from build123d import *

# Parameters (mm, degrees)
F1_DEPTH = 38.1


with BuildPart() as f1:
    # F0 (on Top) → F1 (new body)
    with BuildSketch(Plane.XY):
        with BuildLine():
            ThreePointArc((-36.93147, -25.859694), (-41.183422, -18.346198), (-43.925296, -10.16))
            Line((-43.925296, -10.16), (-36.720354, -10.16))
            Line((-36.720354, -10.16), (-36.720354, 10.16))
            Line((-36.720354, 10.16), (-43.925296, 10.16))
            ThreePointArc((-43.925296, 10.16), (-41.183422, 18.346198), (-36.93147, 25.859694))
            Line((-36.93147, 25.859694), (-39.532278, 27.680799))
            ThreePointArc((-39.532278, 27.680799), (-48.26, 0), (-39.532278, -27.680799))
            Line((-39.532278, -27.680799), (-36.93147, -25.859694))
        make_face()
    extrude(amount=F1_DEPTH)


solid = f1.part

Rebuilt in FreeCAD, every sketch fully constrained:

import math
import FreeCAD as App
import Part
import Sketcher
Q = App.Units.Quantity

doc = App.newDocument("Part")
params = doc.addObject("Spreadsheet::Sheet", "Params")
for row, (alias, value) in enumerate([
    ("sketch1_radius", "1.9000001 in"),
    ("sketch1_height", "0.8 in"),
    ("sketch1_length", "0.125 in"),
    ("pad1_length", "1.5 in"),
], start=1):
    params.set(f"A{row}", alias)
    params.set(f"B{row}", "=" + value)
    params.setAlias(f"B{row}", alias)

body = doc.addObject("PartDesign::Body", "Body")

# Sketch on XY plane
sketch1 = doc.addObject("Sketcher::SketchObject", "Sketch")
body.addObject(sketch1)
sketch1.AttachmentSupport = (doc.XY_Plane, [""])
sketch1.MapMode = "FlatFace"
sketch1.addGeometry([
    Part.ArcOfCircle(Part.Circle(App.Vector(0, 0, 0), App.Vector(0, 0, 1), 45.1), math.radians(-167), math.radians(-145)),  # 0
    Part.LineSegment(App.Vector(-43.9, -10.2, 0), App.Vector(-36.7, -10.2, 0)),  # 1
    Part.LineSegment(App.Vector(-36.7, -10.2, 0), App.Vector(-36.7, 10.2, 0)),  # 2
    Part.LineSegment(App.Vector(-36.7, 10.2, 0), App.Vector(-43.9, 10.2, 0)),  # 3
    Part.ArcOfCircle(Part.Circle(App.Vector(0, 0, 0), App.Vector(0, 0, 1), 45.1), math.radians(145), math.radians(167)),  # 4
    Part.LineSegment(App.Vector(-36.9, 25.9, 0), App.Vector(-39.5, 27.7, 0)),  # 5
    Part.ArcOfCircle(Part.Circle(App.Vector(0, 0, 0), App.Vector(0, 0, 1), 48.3), math.radians(145), math.radians(215)),  # 6
    Part.LineSegment(App.Vector(-39.5, -27.7, 0), App.Vector(-36.9, -25.9, 0)),  # 7
], False)
sketch1.addConstraint([
    Sketcher.Constraint("Coincident", 0, 1, 1, 1),
    Sketcher.Constraint("Coincident", 1, 2, 2, 1),
    Sketcher.Constraint("Coincident", 2, 2, 3, 1),
    Sketcher.Constraint("Coincident", 3, 2, 4, 2),
    Sketcher.Constraint("Coincident", 4, 1, 5, 1),
    Sketcher.Constraint("Coincident", 5, 2, 6, 1),
    Sketcher.Constraint("Coincident", 6, 2, 7, 1),
    Sketcher.Constraint("Coincident", 7, 2, 0, 2),
    Sketcher.Constraint("Horizontal", 1),
    Sketcher.Constraint("Vertical", 2),
    Sketcher.Constraint("Horizontal", 3),
    Sketcher.Constraint("Coincident", 0, 3, -1, 1),
    Sketcher.Constraint("Coincident", 4, 3, -1, 1),
    Sketcher.Constraint("Coincident", 6, 3, -1, 1),
    Sketcher.Constraint("Equal", 0, 4),
    Sketcher.Constraint("Vertical", 0, 1, 3, 2),
    Sketcher.Constraint("Vertical", 5, 2, 6, 2),
    Sketcher.Constraint("Vertical", 4, 1, 7, 2),
    Sketcher.Constraint("Radius", 6, Q("1.9000001 in")),
    Sketcher.Constraint("DistanceY", 2, 1, 2, 2, Q("0.8 in")),
    Sketcher.Constraint("Angle", 5, Q("145.000005 deg")),
    Sketcher.Constraint("Distance", 5, Q("0.125 in")),
    Sketcher.Constraint("DistanceY", -1, 1, 5, 2, 27.680799),
    Sketcher.Constraint("DistanceX", 1, 1, 1, 2, 7.204942),
])
sketch1.setExpression("Constraints[18]", "Params.sketch1_radius")
sketch1.setExpression("Constraints[19]", "Params.sketch1_height")
sketch1.setExpression("Constraints[21]", "Params.sketch1_length")
pad1 = doc.addObject("PartDesign::Pad", "Pad")
body.addObject(pad1)
pad1.Profile = sketch1
pad1.setExpression("Length", "Params.pad1_length")

doc.recompute()
